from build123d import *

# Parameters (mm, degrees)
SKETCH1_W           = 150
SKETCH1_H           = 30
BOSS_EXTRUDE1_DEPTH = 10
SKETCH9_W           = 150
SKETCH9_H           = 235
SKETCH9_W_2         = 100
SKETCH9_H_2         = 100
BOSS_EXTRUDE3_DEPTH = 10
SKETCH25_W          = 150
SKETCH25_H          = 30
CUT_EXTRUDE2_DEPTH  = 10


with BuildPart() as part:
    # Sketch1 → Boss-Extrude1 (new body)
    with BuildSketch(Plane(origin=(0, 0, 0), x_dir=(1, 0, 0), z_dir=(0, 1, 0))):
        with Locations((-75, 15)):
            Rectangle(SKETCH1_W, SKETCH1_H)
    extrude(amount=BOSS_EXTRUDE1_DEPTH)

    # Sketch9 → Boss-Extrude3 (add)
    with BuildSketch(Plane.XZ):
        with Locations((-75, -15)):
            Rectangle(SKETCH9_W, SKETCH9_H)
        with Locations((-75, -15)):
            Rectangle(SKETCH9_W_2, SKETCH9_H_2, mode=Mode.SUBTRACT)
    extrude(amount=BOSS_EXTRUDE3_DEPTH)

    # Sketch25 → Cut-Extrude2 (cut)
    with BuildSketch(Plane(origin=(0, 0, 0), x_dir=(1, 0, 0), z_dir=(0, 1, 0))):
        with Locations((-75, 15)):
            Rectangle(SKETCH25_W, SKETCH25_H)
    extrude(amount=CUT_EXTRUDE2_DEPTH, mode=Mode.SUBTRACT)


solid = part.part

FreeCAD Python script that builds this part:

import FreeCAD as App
import Part
import Sketcher

V = App.Vector
Q = App.Units.Quantity


def add_polygon(sketch, points):
    """Adds a closed chain of lines whose ends are joined by coincident constraints."""
    first, n = sketch.GeometryCount, len(points)
    for a, b in zip(points, points[1:] + points[:1]):
        sketch.addGeometry(Part.LineSegment(App.Vector(*a, 0), App.Vector(*b, 0)), False)
    for i in range(n):
        sketch.addConstraint(Sketcher.Constraint("Coincident", first + i, 2, first + (i + 1) % n, 1))

doc = App.newDocument("Part")
body = doc.addObject("PartDesign::Body", "Body")

sketch1 = body.newObject("Sketcher::SketchObject", "Sketch")
sketch1.AttachmentSupport = (doc.getObject("XZ_Plane"), [""])
sketch1.MapMode = "FlatFace"
add_polygon(sketch1, [(-150, -30), (-150, 0), (0, 0), (0, -30)])
sketch1.addConstraint(Sketcher.Constraint("Vertical", 0))
sketch1.addConstraint(Sketcher.Constraint("Horizontal", 1))
sketch1.addConstraint(Sketcher.Constraint("Vertical", 2))
sketch1.addConstraint(Sketcher.Constraint("Horizontal", 3))
sketch1.addConstraint(Sketcher.Constraint("Coincident", 1, 2, -1, 1))
sketch1.addConstraint(Sketcher.Constraint("DistanceX", 1, 1, 1, 2, Q("150 mm")))
sketch1.addConstraint(Sketcher.Constraint("DistanceY", 0, 1, 0, 2, Q("30 mm")))
pad1 = body.newObject("PartDesign::Pad", "Pad")
pad1.Profile = sketch1
pad1.Length = 10
pad1.Reversed = True

sketch2 = body.newObject("Sketcher::SketchObject", "Sketch001")
sketch2.AttachmentSupport = (doc.getObject("XZ_Plane"), [""])
sketch2.MapMode = "FlatFace"
add_polygon(sketch2, [(-150, 102), (-150, -132), (0, -132), (0, 102)])
add_polygon(sketch2, [(-25, -65), (-125, -65), (-125, 35), (-25, 35)])
sketch2.addConstraint(Sketcher.Constraint("Vertical", 0))
sketch2.addConstraint(Sketcher.Constraint("Horizontal", 1))
sketch2.addConstraint(Sketcher.Constraint("Vertical", 2))
sketch2.addConstraint(Sketcher.Constraint("Horizontal", 3))
sketch2.addConstraint(Sketcher.Constraint("Horizontal", 4))
sketch2.addConstraint(Sketcher.Constraint("Vertical", 5))
sketch2.addConstraint(Sketcher.Constraint("Horizontal", 6))
sketch2.addConstraint(Sketcher.Constraint("Vertical", 7))
sketch2.addConstraint(Sketcher.Constraint("PointOnObject", 1, 2, -2))
sketch2.addConstraint(Sketcher.Constraint("Equal", 6, 5))
sketch2.addConstraint(Sketcher.Constraint("DistanceX", 1, 1, 1, 2, Q("150 mm")))
sketch2.addConstraint(Sketcher.Constraint("DistanceX", 4, 2, 4, 1, Q("100 mm")))
sketch2.addConstraint(Sketcher.Constraint("DistanceY", 0, 2, 0, 1, Q("235 mm")))
sketch2.addConstraint(Sketcher.Constraint("DistanceX", 4, 2, -1, 1, Q("125 mm")))
sketch2.addConstraint(Sketcher.Constraint("DistanceY", 4, 2, -1, 1, Q("65 mm")))
sketch2.addConstraint(Sketcher.Constraint("DistanceY", 0, 2, -1, 1, Q("132.5 mm")))
pad2 = body.newObject("PartDesign::Pad", "Pad001")
pad2.Profile = sketch2
pad2.Length = 10

sketch3 = body.newObject("Sketcher::SketchObject", "Sketch002")
sketch3.AttachmentSupport = (doc.getObject("XZ_Plane"), [""])
sketch3.MapMode = "FlatFace"
add_polygon(sketch3, [(-150, -30), (-150, 0), (0, 0), (0, -30)])
sketch3.addConstraint(Sketcher.Constraint("Vertical", 0))
sketch3.addConstraint(Sketcher.Constraint("Horizontal", 1))
sketch3.addConstraint(Sketcher.Constraint("Vertical", 2))
sketch3.addConstraint(Sketcher.Constraint("Horizontal", 3))
sketch3.addConstraint(Sketcher.Constraint("Coincident", 1, 2, -1, 1))
sketch3.addConstraint(Sketcher.Constraint("DistanceX", 1, 1, 1, 2, Q("150 mm")))
sketch3.addConstraint(Sketcher.Constraint("DistanceY", 0, 1, 0, 2, Q("30 mm")))
pocket1 = body.newObject("PartDesign::Pocket", "Pocket")
pocket1.Profile = sketch3
pocket1.Length = 10

doc.recompute()
